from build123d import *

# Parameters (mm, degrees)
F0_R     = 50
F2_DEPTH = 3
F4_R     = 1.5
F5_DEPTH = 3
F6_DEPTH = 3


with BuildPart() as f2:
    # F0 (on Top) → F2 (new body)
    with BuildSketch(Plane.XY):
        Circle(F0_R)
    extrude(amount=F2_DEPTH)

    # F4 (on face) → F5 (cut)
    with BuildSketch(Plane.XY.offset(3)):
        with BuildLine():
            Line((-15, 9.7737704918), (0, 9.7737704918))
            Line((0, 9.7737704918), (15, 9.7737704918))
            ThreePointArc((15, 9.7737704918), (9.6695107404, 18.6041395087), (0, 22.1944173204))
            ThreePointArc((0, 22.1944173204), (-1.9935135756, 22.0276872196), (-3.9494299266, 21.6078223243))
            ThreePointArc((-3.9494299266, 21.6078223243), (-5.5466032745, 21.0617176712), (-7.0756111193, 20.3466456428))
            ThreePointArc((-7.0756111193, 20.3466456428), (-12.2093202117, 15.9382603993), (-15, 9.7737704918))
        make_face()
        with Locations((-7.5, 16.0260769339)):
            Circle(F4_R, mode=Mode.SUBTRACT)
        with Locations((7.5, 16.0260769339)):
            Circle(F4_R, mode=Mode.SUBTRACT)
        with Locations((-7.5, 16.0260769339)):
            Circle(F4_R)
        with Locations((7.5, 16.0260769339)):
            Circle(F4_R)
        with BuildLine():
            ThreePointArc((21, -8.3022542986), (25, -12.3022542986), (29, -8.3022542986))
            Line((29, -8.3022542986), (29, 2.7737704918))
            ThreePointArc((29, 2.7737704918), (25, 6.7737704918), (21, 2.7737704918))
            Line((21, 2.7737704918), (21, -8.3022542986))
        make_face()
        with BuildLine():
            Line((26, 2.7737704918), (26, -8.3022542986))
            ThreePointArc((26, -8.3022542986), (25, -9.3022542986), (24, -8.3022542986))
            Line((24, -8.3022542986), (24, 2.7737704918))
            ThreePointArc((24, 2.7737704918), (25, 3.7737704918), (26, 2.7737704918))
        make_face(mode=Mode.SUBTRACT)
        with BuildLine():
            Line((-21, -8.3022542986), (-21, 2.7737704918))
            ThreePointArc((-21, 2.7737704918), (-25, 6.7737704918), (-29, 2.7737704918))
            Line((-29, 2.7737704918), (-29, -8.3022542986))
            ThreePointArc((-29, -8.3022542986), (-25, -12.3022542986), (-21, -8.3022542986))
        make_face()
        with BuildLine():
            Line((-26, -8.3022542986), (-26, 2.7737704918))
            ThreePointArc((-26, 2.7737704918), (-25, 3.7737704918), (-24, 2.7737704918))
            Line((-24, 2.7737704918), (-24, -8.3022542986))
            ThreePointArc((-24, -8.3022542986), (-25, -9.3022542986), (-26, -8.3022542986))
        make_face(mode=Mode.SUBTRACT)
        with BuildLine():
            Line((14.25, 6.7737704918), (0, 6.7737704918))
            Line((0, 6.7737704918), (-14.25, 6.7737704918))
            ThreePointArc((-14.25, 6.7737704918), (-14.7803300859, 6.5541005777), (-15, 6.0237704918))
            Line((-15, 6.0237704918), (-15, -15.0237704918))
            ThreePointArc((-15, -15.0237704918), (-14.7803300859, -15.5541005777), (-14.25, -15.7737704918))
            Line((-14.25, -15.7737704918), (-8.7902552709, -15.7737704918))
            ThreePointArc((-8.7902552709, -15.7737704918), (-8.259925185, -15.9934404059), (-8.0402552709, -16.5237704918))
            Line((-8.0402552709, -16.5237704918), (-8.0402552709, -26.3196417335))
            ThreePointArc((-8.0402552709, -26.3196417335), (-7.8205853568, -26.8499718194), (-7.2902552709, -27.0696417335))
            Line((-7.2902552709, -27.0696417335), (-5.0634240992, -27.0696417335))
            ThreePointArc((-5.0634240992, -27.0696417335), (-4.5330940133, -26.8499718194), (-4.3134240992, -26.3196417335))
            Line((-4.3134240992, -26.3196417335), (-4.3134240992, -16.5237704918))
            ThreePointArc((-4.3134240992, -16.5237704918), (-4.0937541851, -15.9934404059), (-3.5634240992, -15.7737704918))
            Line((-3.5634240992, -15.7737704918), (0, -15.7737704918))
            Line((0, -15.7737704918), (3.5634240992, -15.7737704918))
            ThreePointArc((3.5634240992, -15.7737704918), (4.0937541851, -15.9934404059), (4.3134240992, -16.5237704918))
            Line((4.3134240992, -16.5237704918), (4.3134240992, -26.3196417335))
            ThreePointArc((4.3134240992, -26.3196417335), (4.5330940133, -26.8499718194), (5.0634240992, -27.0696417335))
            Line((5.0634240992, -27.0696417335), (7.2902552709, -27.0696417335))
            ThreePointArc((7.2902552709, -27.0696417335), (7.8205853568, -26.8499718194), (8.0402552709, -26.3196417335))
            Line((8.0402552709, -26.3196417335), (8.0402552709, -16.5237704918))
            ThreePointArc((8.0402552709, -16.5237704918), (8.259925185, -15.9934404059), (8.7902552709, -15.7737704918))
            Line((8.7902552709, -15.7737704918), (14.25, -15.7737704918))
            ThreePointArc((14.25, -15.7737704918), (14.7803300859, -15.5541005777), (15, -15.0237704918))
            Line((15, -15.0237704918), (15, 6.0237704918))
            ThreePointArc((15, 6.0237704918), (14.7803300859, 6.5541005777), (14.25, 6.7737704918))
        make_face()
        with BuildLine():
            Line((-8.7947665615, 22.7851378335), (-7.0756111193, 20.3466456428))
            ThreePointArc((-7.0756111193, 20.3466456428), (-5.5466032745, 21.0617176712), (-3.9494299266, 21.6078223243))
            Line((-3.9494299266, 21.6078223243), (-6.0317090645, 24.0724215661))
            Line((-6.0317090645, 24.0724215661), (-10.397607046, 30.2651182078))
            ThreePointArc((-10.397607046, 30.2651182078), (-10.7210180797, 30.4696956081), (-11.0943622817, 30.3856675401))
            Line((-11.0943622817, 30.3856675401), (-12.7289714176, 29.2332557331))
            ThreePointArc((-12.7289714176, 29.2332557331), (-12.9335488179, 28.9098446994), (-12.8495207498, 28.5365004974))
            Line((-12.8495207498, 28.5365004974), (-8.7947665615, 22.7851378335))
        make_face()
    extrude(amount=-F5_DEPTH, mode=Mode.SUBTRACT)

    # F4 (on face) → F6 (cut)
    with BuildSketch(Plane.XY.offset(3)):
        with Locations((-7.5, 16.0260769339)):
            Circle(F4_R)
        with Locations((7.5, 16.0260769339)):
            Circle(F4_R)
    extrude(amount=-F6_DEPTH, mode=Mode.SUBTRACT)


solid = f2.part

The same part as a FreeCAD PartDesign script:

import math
import FreeCAD as App
import Part
import Sketcher
Q = App.Units.Quantity

doc = App.newDocument("Part")
body = doc.addObject("PartDesign::Body", "Body")
body.AllowCompound = True

# Sketch on XY plane
sketch1 = doc.addObject("Sketcher::SketchObject", "Sketch")
body.addObject(sketch1)
sketch1.AttachmentSupport = (doc.XY_Plane, [""])
sketch1.MapMode = "FlatFace"
sketch1.addGeometry(Part.Circle(App.Vector(0, 0, 0), App.Vector(0, 0, 1), 50), False)
sketch1.addConstraint(Sketcher.Constraint("Coincident", 0, 3, -1, 1))
sketch1.addConstraint(Sketcher.Constraint("Diameter", 0, Q("100 mm")))
pad1 = doc.addObject("PartDesign::Pad", "Pad")
body.addObject(pad1)
pad1.Profile = sketch1
pad1.Length = 3

# Sketch on XY plane
sketch2 = doc.addObject("Sketcher::SketchObject", "Sketch001")
body.addObject(sketch2)
sketch2.AttachmentSupport = (doc.XY_Plane, [""])
sketch2.MapMode = "FlatFace"
sketch2.AttachmentOffset = App.Placement(App.Vector(0, 0, 3), App.Rotation())
sketch2.addGeometry(Part.LineSegment(App.Vector(-15, 9.8, 0), App.Vector(15, 9.8, 0)), False)
sketch2.addGeometry(Part.ArcOfCircle(Part.Circle(App.Vector(-0.3, 6.6, 0), App.Vector(0, 0, 1), 15.6), math.radians(12), math.radians(89)), False)
sketch2.addGeometry(Part.ArcOfCircle(Part.Circle(App.Vector(0.3, 6.6, 0), App.Vector(0, 0, 1), 15.6), math.radians(91.11), math.radians(105.78)), False)
sketch2.addGeometry(Part.LineSegment(App.Vector(-3.9, 21.6, 0), App.Vector(-6, 24.1, 0)), False)
sketch2.addGeometry(Part.LineSegment(App.Vector(-6, 24.1, 0), App.Vector(-10.4, 30.3, 0)), False)
sketch2.addGeometry(Part.ArcOfCircle(Part.Circle(App.Vector(-10.8, 30, 0), App.Vector(0, 0, 1), 0.5), math.radians(35), math.radians(125)), False)
sketch2.addGeometry(Part.LineSegment(App.Vector(-11.1, 30.4, 0), App.Vector(-12.7, 29.2, 0)), False)
sketch2.addGeometry(Part.ArcOfCircle(Part.Circle(App.Vector(-12.4, 28.8, 0), App.Vector(0, 0, 1), 0.5), math.radians(125), math.radians(215)), False)
sketch2.addGeometry(Part.LineSegment(App.Vector(-12.8, 28.5, 0), App.Vector(-8.8, 22.8, 0)), False)
sketch2.addGeometry(Part.LineSegment(App.Vector(-8.8, 22.8, 0), App.Vector(-7.1, 20.3, 0)), False)
sketch2.addGeometry(Part.ArcOfCircle(Part.Circle(App.Vector(0.3, 6.6, 0), App.Vector(0, 0, 1), 15.6), math.radians(118), math.radians(168)), False)
sketch2.addGeometry(Part.ArcOfCircle(Part.Circle(App.Vector(25, -8.3, 0), App.Vector(0, 0, 1), 4), math.radians(180), math.radians(360)), False)
sketch2.addGeometry(Part.LineSegment(App.Vector(29, -8.3, 0), App.Vector(29, 2.8, 0)), False)
sketch2.addGeometry(Part.ArcOfCircle(Part.Circle(App.Vector(25, 2.8, 0), App.Vector(0, 0, 1), 4), math.radians(0), math.radians(180)), False)
sketch2.addGeometry(Part.LineSegment(App.Vector(21, 2.8, 0), App.Vector(21, -8.3, 0)), False)
sketch2.addGeometry(Part.ArcOfCircle(Part.Circle(App.Vector(25, 2.8, 0), App.Vector(0, 0, 1), 1), math.radians(0), math.radians(180)), False)
sketch2.addGeometry(Part.LineSegment(App.Vector(26, 2.8, 0), App.Vector(26, -8.3, 0)), False)
sketch2.addGeometry(Part.ArcOfCircle(Part.Circle(App.Vector(25, -8.3, 0), App.Vector(0, 0, 1), 1), math.radians(180), math.radians(360)), False)
sketch2.addGeometry(Part.LineSegment(App.Vector(24, -8.3, 0), App.Vector(24, 2.8, 0)), False)
sketch2.addGeometry(Part.LineSegment(App.Vector(-21, -8.3, 0), App.Vector(-21, 2.8, 0)), False)
sketch2.addGeometry(Part.ArcOfCircle(Part.Circle(App.Vector(-25, 2.8, 0), App.Vector(0, 0, 1), 4), math.radians(0), math.radians(180)), False)
sketch2.addGeometry(Part.LineSegment(App.Vector(-29, 2.8, 0), App.Vector(-29, -8.3, 0)), False)
sketch2.addGeometry(Part.ArcOfCircle(Part.Circle(App.Vector(-25, -8.3, 0), App.Vector(0, 0, 1), 4), math.radians(180), math.radians(360)), False)
sketch2.addGeometry(Part.ArcOfCircle(Part.Circle(App.Vector(-25, -8.3, 0), App.Vector(0, 0, 1), 1), math.radians(180), math.radians(360)), False)
sketch2.addGeometry(Part.LineSegment(App.Vector(-26, -8.3, 0), App.Vector(-26, 2.8, 0)), False)
sketch2.addGeometry(Part.ArcOfCircle(Part.Circle(App.Vector(-25, 2.8, 0), App.Vector(0, 0, 1), 1), math.radians(0), math.radians(180)), False)
sketch2.addGeometry(Part.LineSegment(App.Vector(-24, 2.8, 0), App.Vector(-24, -8.3, 0)), False)
sketch2.addGeometry(Part.LineSegment(App.Vector(14.2, 6.8, 0), App.Vector(-14.2, 6.8, 0)), False)
sketch2.addGeometry(Part.ArcOfCircle(Part.Circle(App.Vector(-14.2, 6, 0), App.Vector(0, 0, 1), 0.8), math.radians(90), math.radians(180)), False)
sketch2.addGeometry(Part.LineSegment(App.Vector(-15, 6, 0), App.Vector(-15, -15, 0)), False)
sketch2.addGeometry(Part.ArcOfCircle(Part.Circle(App.Vector(-14.2, -15, 0), App.Vector(0, 0, 1), 0.8), math.radians(180), math.radians(270)), False)
sketch2.addGeometry(Part.LineSegment(App.Vector(-14.2, -15.8, 0), App.Vector(-8.8, -15.8, 0)), False)
sketch2.addGeometry(Part.ArcOfCircle(Part.Circle(App.Vector(-8.8, -16.5, 0), App.Vector(0, 0, 1), 0.8), math.radians(0), math.radians(90)), False)
sketch2.addGeometry(Part.LineSegment(App.Vector(-8, -16.5, 0), App.Vector(-8, -26.3, 0)), False)
sketch2.addGeometry(Part.ArcOfCircle(Part.Circle(App.Vector(-7.3, -26.3, 0), App.Vector(0, 0, 1), 0.8), math.radians(180), math.radians(270)), False)
sketch2.addGeometry(Part.LineSegment(App.Vector(-7.3, -27.1, 0), App.Vector(-5.1, -27.1, 0)), False)
sketch2.addGeometry(Part.ArcOfCircle(Part.Circle(App.Vector(-5.1, -26.3, 0), App.Vector(0, 0, 1), 0.8), math.radians(-90), math.radians(0)), False)
sketch2.addGeometry(Part.LineSegment(App.Vector(-4.3, -26.3, 0), App.Vector(-4.3, -16.5, 0)), False)
sketch2.addGeometry(Part.ArcOfCircle(Part.Circle(App.Vector(-3.6, -16.5, 0), App.Vector(0, 0, 1), 0.8), math.radians(90), math.radians(180)), False)
sketch2.addGeometry(Part.LineSegment(App.Vector(-3.6, -15.8, 0), App.Vector(3.6, -15.8, 0)), False)
sketch2.addGeometry(Part.ArcOfCircle(Part.Circle(App.Vector(3.6, -16.5, 0), App.Vector(0, 0, 1), 0.8), math.radians(0), math.radians(90)), False)
sketch2.addGeometry(Part.LineSegment(App.Vector(4.3, -16.5, 0), App.Vector(4.3, -26.3, 0)), False)
sketch2.addGeometry(Part.ArcOfCircle(Part.Circle(App.Vector(5.1, -26.3, 0), App.Vector(0, 0, 1), 0.8), math.radians(180), math.radians(270)), False)
sketch2.addGeometry(Part.LineSegment(App.Vector(5.1, -27.1, 0), App.Vector(7.3, -27.1, 0)), False)
sketch2.addGeometry(Part.ArcOfCircle(Part.Circle(App.Vector(7.3, -26.3, 0), App.Vector(0, 0, 1), 0.8), math.radians(-90), math.radians(0)), False)
sketch2.addGeometry(Part.LineSegment(App.Vector(8, -26.3, 0), App.Vector(8, -16.5, 0)), False)
sketch2.addGeometry(Part.ArcOfCircle(Part.Circle(App.Vector(8.8, -16.5, 0), App.Vector(0, 0, 1), 0.8), math.radians(90), math.radians(180)), False)
sketch2.addGeometry(Part.LineSegment(App.Vector(8.8, -15.8, 0), App.Vector(14.2, -15.8, 0)), False)
sketch2.addGeometry(Part.ArcOfCircle(Part.Circle(App.Vector(14.2, -15, 0), App.Vector(0, 0, 1), 0.8), math.radians(-90), math.radians(0)), False)
sketch2.addGeometry(Part.LineSegment(App.Vector(15, -15, 0), App.Vector(15, 6, 0)), False)
sketch2.addGeometry(Part.ArcOfCircle(Part.Circle(App.Vector(14.2, 6, 0), App.Vector(0, 0, 1), 0.8), math.radians(0), math.radians(90)), False)
sketch2.addConstraint(Sketcher.Constraint("Coincident", 0, 2, 1, 1))
sketch2.addConstraint(Sketcher.Constraint("Coincident", 1, 2, 2, 1))
sketch2.addConstraint(Sketcher.Constraint("Coincident", 2, 2, 3, 1))
sketch2.addConstraint(Sketcher.Constraint("Coincident", 3, 2, 4, 1))
sketch2.addConstraint(Sketcher.Constraint("Tangent", 4, 2, 5, 1))
sketch2.addConstraint(Sketcher.Constraint("Tangent", 5, 2, 6, 1))
sketch2.addConstraint(Sketcher.Constraint("Tangent", 6, 2, 7, 1))
sketch2.addConstraint(Sketcher.Constraint("Tangent", 7, 2, 8, 1))
sketch2.addConstraint(Sketcher.Constraint("Coincident", 8, 2, 9, 1))
sketch2.addConstraint(Sketcher.Constraint("Coincident", 9, 2, 10, 1))
sketch2.addConstraint(Sketcher.Constraint("Coincident", 10, 2, 0, 1))
sketch2.addConstraint(Sketcher.Constraint("Tangent", 11, 2, 12, 1))
sketch2.addConstraint(Sketcher.Constraint("Tangent", 12, 2, 13, 1))
sketch2.addConstraint(Sketcher.Constraint("Tangent", 13, 2, 14, 1))
sketch2.addConstraint(Sketcher.Constraint("Tangent", 14, 2, 11, 1))
sketch2.addConstraint(Sketcher.Constraint("Tangent", 15, 1, 16, 1))
sketch2.addConstraint(Sketcher.Constraint("Tangent", 16, 2, 17, 2))
sketch2.addConstraint(Sketcher.Constraint("Tangent", 17, 1, 18, 1))
sketch2.addConstraint(Sketcher.Constraint("Tangent", 18, 2, 15, 2))
sketch2.addConstraint(Sketcher.Constraint("Tangent", 19, 2, 20, 1))
sketch2.addConstraint(Sketcher.Constraint("Tangent", 20, 2, 21, 1))
sketch2.addConstraint(Sketcher.Constraint("Tangent", 21, 2, 22, 1))
sketch2.addConstraint(Sketcher.Constraint("Tangent", 22, 2, 19, 1))
sketch2.addConstraint(Sketcher.Constraint("Tangent", 23, 1, 24, 1))
sketch2.addConstraint(Sketcher.Constraint("Tangent", 24, 2, 25, 2))
sketch2.addConstraint(Sketcher.Constraint("Tangent", 25, 1, 26, 1))
sketch2.addConstraint(Sketcher.Constraint("Tangent", 26, 2, 23, 2))
sketch2.addConstraint(Sketcher.Constraint("Tangent", 27, 2, 28, 1))
sketch2.addConstraint(Sketcher.Constraint("Tangent", 28, 2, 29, 1))
sketch2.addConstraint(Sketcher.Constraint("Tangent", 29, 2, 30, 1))
sketch2.addConstraint(Sketcher.Constraint("Tangent", 30, 2, 31, 1))
sketch2.addConstraint(Sketcher.Constraint("Tangent", 31, 2, 32, 2))
sketch2.addConstraint(Sketcher.Constraint("Tangent", 32, 1, 33, 1))
sketch2.addConstraint(Sketcher.Constraint("Tangent", 33, 2, 34, 1))
sketch2.addConstraint(Sketcher.Constraint("Tangent", 34, 2, 35, 1))
sketch2.addConstraint(Sketcher.Constraint("Tangent", 35, 2, 36, 1))
sketch2.addConstraint(Sketcher.Constraint("Tangent", 36, 2, 37, 1))
sketch2.addConstraint(Sketcher.Constraint("Tangent", 37, 2, 38, 2))
sketch2.addConstraint(Sketcher.Constraint("Tangent", 38, 1, 39, 1))
sketch2.addConstraint(Sketcher.Constraint("Tangent", 39, 2, 40, 2))
sketch2.addConstraint(Sketcher.Constraint("Tangent", 40, 1, 41, 1))
sketch2.addConstraint(Sketcher.Constraint("Tangent", 41, 2, 42, 1))
sketch2.addConstraint(Sketcher.Constraint("Tangent", 42, 2, 43, 1))
sketch2.addConstraint(Sketcher.Constraint("Tangent", 43, 2, 44, 1))
sketch2.addConstraint(Sketcher.Constraint("Tangent", 44, 2, 45, 1))
sketch2.addConstraint(Sketcher.Constraint("Tangent", 45, 2, 46, 2))
sketch2.addConstraint(Sketcher.Constraint("Tangent", 46, 1, 47, 1))
sketch2.addConstraint(Sketcher.Constraint("Tangent", 47, 2, 48, 1))
sketch2.addConstraint(Sketcher.Constraint("Tangent", 48, 2, 49, 1))
sketch2.addConstraint(Sketcher.Constraint("Tangent", 49, 2, 50, 1))
sketch2.addConstraint(Sketcher.Constraint("Tangent", 50, 2, 27, 1))
sketch2.addConstraint(Sketcher.Constraint("Horizontal", 0))
sketch2.addConstraint(Sketcher.Constraint("Vertical", 12))
sketch2.addConstraint(Sketcher.Constraint("Vertical", 14))
sketch2.addConstraint(Sketcher.Constraint("Vertical", 16))
sketch2.addConstraint(Sketcher.Constraint("Vertical", 18))
sketch2.addConstraint(Sketcher.Constraint("Vertical", 19))
sketch2.addConstraint(Sketcher.Constraint("Vertical", 21))
sketch2.addConstraint(Sketcher.Constraint("Vertical", 24))
sketch2.addConstraint(Sketcher.Constraint("Vertical", 26))
sketch2.addConstraint(Sketcher.Constraint("Horizontal", 27))
sketch2.addConstraint(Sketcher.Constraint("Vertical", 29))
sketch2.addConstraint(Sketcher.Constraint("Horizontal", 31))
sketch2.addConstraint(Sketcher.Constraint("Vertical", 33))
sketch2.addConstraint(Sketcher.Constraint("Horizontal", 35))
sketch2.addConstraint(Sketcher.Constraint("Vertical", 37))
sketch2.addConstraint(Sketcher.Constraint("Horizontal", 39))
sketch2.addConstraint(Sketcher.Constraint("Vertical", 41))
sketch2.addConstraint(Sketcher.Constraint("Horizontal", 43))
sketch2.addConstraint(Sketcher.Constraint("Vertical", 45))
sketch2.addConstraint(Sketcher.Constraint("Horizontal", 47))
sketch2.addConstraint(Sketcher.Constraint("Vertical", 49))
sketch2.addConstraint(Sketcher.Constraint("Coincident", 10, 3, 2, 3))
sketch2.addConstraint(Sketcher.Constraint("Coincident", 15, 3, 13, 3))
sketch2.addConstraint(Sketcher.Constraint("Coincident", 23, 3, 22, 3))
sketch2.addConstraint(Sketcher.Constraint("Equal", 1, 2))
sketch2.addConstraint(Sketcher.Constraint("Equal", 5, 7))
sketch2.addConstraint(Sketcher.Constraint("Equal", 2, 10))
sketch2.addConstraint(Sketcher.Constraint("Equal", 13, 20))
sketch2.addConstraint(Sketcher.Constraint("Equal", 17, 23))
sketch2.addConstraint(Sketcher.Constraint("Equal", 28, 30))
sketch2.addConstraint(Sketcher.Constraint("Equal", 30, 32))
sketch2.addConstraint(Sketcher.Constraint("Equal", 32, 34))
sketch2.addConstraint(Sketcher.Constraint("Equal", 34, 36))
sketch2.addConstraint(Sketcher.Constraint("Equal", 36, 38))
sketch2.addConstraint(Sketcher.Constraint("Equal", 38, 40))
sketch2.addConstraint(Sketcher.Constraint("Equal", 40, 42))
sketch2.addConstraint(Sketcher.Constraint("Equal", 42, 44))
sketch2.addConstraint(Sketcher.Constraint("Equal", 44, 46))
sketch2.addConstraint(Sketcher.Constraint("Equal", 46, 48))
sketch2.addConstraint(Sketcher.Constraint("Equal", 48, 50))
sketch2.addConstraint(Sketcher.Constraint("Symmetric", 1, 3, 2, 3, -2))
sketch2.addConstraint(Sketcher.Constraint("Symmetric", 13, 3, 20, 3, -2))
sketch2.addConstraint(Sketcher.Constraint("Symmetric", 36, 3, 42, 3, -2))
sketch2.addConstraint(Sketcher.Constraint("Symmetric", 32, 3, 46, 3, -2))
sketch2.addConstraint(Sketcher.Constraint("Perpendicular", 4, 6))
sketch2.addConstraint(Sketcher.Constraint("Perpendicular", 6, 8))
sketch2.addConstraint(Sketcher.Constraint("Parallel", 8, 9))
sketch2.addConstraint(Sketcher.Constraint("Horizontal", 17, 3, 22, 3))
sketch2.addConstraint(Sketcher.Constraint("Horizontal", 15, 3, 25, 3))
sketch2.addConstraint(Sketcher.Constraint("Horizontal", 32, 3, 38, 3))
sketch2.addConstraint(Sketcher.Constraint("Horizontal", 23, 3, 11, 2))
sketch2.addConstraint(Sketcher.Constraint("Vertical", 10, 2, 28, 2))
sketch2.addConstraint(Sketcher.Constraint("Vertical", 0, 2, 48, 2))
sketch2.addConstraint(Sketcher.Constraint("Radius", 11, Q("4 mm")))
sketch2.addConstraint(Sketcher.Constraint("Radius", 15, Q("1 mm")))
sketch2.addConstraint(Sketcher.Constraint("Radius", 5, Q("0.5 mm")))
sketch2.addConstraint(Sketcher.Constraint("DistanceX", 0, 1, 0, 2, Q("30 mm")))
sketch2.addConstraint(Sketcher.Constraint("Radius", 28, Q("0.75 mm")))
sketch2.addConstraint(Sketcher.Constraint("Distance", 6, Q("2 mm")))
sketch2.addConstraint(Sketcher.Constraint("DistanceX", -1, 1, 11, 3, Q("25 mm")))
sketch2.addConstraint(Sketcher.Constraint("Radius", 1, Q("15.6378 mm")))
sketch2.addConstraint(Sketcher.Constraint("DistanceX", 35, 1, 35, 2, Q("2.226831 mm")))
sketch2.addConstraint(Sketcher.Constraint("DistanceX", 39, 1, 39, 2, Q("7.126848 mm")))
sketch2.addConstraint(Sketcher.Constraint("DistanceY", 29, 2, 29, 1, Q("21.047541 mm")))
sketch2.addConstraint(Sketcher.Constraint("DistanceY", 33, 2, 33, 1, Q("9.795871 mm")))
sketch2.addConstraint(Sketcher.Constraint("DistanceY", -1, 1, 7, 2, Q("28.5365 mm")))
sketch2.addConstraint(Sketcher.Constraint("Distance", 8, Q("7.036988 mm")))
sketch2.addConstraint(Sketcher.Constraint("Distance", 9, Q("2.983578 mm")))
sketch2.addConstraint(Sketcher.Constraint("DistanceY", 12, 1, 12, 2, Q("11.076025 mm")))
sketch2.addConstraint(Sketcher.Constraint("DistanceX", 1, 3, -1, 1, Q("0.303912 mm")))
sketch2.addConstraint(Sketcher.Constraint("DistanceY", -1, 1, 1, 3, Q("6.559571 mm")))
sketch2.addConstraint(Sketcher.Constraint("DistanceX", 5, 3, -1, 1, Q("10.806259 mm")))
sketch2.addConstraint(Sketcher.Constraint("DistanceY", -1, 1, 13, 3, Q("2.77377 mm")))
sketch2.addConstraint(Sketcher.Constraint("DistanceY", -1, 1, 28, 3, Q("6.02377 mm")))
sketch2.addConstraint(Sketcher.Constraint("DistanceX", 2, 2, -1, 1, Q("3.94943 mm")))
sketch2.addConstraint(Sketcher.Constraint("DistanceX", 3, 2, -1, 1, Q("6.031709 mm")))
pocket1 = doc.addObject("PartDesign::Pocket", "Pocket")
body.addObject(pocket1)
pocket1.Profile = sketch2
pocket1.Length = 3

# Sketch on XY plane
sketch3 = doc.addObject("Sketcher::SketchObject", "Sketch002")
body.addObject(sketch3)
sketch3.AttachmentSupport = (doc.XY_Plane, [""])
sketch3.MapMode = "FlatFace"
sketch3.AttachmentOffset = App.Placement(App.Vector(0, 0, 3), App.Rotation())
sketch3.addGeometry(Part.Circle(App.Vector(-7.5, 16, 0), App.Vector(0, 0, 1), 1.5), False)
sketch3.addGeometry(Part.Circle(App.Vector(7.5, 16, 0), App.Vector(0, 0, 1), 1.5), False)
sketch3.addConstraint(Sketcher.Constraint("Equal", 0, 1))
sketch3.addConstraint(Sketcher.Constraint("Symmetric", 0, 3, 1, 3, -2))
sketch3.addConstraint(Sketcher.Constraint("Diameter", 0, Q("3 mm")))
sketch3.addConstraint(Sketcher.Constraint("DistanceX", 0, 3, 1, 3, Q("15 mm")))
sketch3.addConstraint(Sketcher.Constraint("DistanceY", -1, 1, 0, 3, Q("16.026077 mm")))
pocket2 = doc.addObject("PartDesign::Pocket", "Pocket001")
body.addObject(pocket2)
pocket2.Profile = sketch3
pocket2.Length = 3

doc.recompute()
